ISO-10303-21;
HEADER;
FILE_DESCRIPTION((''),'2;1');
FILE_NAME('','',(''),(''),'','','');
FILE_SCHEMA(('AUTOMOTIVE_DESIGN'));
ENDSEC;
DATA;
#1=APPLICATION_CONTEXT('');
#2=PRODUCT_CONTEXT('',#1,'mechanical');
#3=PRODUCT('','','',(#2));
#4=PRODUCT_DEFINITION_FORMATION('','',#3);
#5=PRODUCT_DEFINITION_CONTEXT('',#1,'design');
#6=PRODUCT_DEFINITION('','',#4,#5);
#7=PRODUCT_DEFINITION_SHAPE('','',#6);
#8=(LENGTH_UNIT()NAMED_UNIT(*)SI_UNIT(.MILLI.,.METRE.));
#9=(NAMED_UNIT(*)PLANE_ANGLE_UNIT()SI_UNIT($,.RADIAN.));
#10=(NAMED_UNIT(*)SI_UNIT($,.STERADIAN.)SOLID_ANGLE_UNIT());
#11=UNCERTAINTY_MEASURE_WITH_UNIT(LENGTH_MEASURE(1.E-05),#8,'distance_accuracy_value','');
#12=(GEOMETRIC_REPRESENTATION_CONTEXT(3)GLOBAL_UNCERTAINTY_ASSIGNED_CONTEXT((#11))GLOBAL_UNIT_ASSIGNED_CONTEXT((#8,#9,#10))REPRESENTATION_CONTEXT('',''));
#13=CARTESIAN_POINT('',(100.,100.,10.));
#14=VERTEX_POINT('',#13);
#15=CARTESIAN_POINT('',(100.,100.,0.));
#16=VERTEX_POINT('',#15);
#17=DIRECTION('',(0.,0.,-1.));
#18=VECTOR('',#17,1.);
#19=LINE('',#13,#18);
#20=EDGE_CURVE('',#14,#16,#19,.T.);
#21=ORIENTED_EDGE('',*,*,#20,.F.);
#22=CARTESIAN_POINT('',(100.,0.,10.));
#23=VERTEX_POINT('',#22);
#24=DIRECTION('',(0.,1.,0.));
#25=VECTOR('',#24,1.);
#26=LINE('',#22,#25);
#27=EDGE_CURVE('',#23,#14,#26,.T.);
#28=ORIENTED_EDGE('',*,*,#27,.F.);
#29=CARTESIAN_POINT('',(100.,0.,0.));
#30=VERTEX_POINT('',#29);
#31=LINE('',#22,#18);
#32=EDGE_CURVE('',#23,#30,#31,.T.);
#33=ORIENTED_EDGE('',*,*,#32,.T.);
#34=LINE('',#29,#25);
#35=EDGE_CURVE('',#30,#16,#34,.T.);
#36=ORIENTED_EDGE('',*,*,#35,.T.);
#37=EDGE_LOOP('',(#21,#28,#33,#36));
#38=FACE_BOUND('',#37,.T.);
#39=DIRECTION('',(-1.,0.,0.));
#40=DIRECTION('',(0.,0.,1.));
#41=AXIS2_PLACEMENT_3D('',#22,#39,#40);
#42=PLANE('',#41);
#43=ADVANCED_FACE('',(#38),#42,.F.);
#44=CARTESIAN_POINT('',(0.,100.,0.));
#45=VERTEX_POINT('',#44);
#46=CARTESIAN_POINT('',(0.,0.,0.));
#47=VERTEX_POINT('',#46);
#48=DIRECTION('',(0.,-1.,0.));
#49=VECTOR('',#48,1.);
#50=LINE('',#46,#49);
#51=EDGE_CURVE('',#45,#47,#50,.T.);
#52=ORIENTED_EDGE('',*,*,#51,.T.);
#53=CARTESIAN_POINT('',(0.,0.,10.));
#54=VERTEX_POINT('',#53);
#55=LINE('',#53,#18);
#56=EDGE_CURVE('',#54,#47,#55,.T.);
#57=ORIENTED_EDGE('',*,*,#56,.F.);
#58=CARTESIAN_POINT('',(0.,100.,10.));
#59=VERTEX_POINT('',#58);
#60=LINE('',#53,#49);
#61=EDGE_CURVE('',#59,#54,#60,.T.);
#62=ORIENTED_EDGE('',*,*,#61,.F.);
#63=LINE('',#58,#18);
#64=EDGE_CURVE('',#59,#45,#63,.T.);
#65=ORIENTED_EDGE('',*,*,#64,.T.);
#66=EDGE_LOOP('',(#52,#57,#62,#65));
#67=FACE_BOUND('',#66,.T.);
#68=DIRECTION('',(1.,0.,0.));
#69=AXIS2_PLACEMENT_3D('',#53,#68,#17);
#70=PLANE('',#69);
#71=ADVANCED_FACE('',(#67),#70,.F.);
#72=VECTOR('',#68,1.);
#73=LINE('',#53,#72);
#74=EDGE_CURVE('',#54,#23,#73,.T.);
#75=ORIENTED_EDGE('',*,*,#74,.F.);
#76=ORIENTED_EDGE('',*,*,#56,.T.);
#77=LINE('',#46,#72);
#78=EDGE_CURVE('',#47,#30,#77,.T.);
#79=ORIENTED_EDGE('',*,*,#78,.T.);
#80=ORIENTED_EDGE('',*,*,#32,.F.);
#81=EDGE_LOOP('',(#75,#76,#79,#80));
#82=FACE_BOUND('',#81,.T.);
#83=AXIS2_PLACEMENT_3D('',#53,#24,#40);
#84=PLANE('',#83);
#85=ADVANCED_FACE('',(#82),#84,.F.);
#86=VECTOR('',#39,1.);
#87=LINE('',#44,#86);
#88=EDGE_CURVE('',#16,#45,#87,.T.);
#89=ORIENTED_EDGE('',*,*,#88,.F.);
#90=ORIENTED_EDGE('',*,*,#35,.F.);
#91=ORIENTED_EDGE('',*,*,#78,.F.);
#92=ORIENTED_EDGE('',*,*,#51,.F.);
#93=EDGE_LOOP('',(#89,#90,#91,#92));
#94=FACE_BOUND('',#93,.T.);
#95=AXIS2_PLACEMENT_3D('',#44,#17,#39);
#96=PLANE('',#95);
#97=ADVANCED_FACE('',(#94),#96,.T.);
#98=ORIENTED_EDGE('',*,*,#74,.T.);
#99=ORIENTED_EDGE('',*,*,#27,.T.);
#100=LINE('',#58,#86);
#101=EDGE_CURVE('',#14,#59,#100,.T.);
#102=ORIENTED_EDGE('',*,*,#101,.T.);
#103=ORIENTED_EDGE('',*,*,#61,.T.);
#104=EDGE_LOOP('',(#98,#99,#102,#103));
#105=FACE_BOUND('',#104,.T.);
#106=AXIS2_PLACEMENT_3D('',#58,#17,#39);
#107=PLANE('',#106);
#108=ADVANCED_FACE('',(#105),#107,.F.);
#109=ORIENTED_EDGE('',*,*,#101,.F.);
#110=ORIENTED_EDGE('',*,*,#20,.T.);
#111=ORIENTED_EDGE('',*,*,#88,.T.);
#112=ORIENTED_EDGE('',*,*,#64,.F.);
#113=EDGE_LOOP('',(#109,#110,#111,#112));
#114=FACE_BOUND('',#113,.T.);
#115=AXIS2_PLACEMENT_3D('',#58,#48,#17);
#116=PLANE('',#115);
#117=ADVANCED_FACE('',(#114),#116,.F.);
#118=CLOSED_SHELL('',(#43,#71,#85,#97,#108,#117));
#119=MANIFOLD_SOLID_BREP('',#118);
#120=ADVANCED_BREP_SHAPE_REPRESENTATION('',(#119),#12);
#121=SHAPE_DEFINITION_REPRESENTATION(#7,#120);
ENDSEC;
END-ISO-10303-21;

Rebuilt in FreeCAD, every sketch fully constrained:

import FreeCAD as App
import Part
import Sketcher
from FreeCAD import Vector
Q = App.Units.Quantity

doc = App.newDocument("Part")
body = doc.addObject("PartDesign::Body", "Body")

# Sketch on XY plane
sketch1 = body.newObject("Sketcher::SketchObject", "Sketch")
sketch1.AttachmentSupport = (doc.getObject("XY_Plane"), [""])
sketch1.MapMode = "FlatFace"
sketch1.addGeometry([
    Part.LineSegment(Vector(0, 100, 0), Vector(0, 0, 0)),
    Part.LineSegment(Vector(0, 0, 0), Vector(100, 0, 0)),
    Part.LineSegment(Vector(100, 0, 0), Vector(100, 100, 0)),
    Part.LineSegment(Vector(100, 100, 0), Vector(0, 100, 0)),
], False)
sketch1.addConstraint([
    Sketcher.Constraint("Coincident", 0, 2, 1, 1),
    Sketcher.Constraint("Coincident", 1, 2, 2, 1),
    Sketcher.Constraint("Coincident", 2, 2, 3, 1),
    Sketcher.Constraint("Coincident", 3, 2, 0, 1),
    Sketcher.Constraint("Vertical", 0),
    Sketcher.Constraint("Horizontal", 1),
    Sketcher.Constraint("Vertical", 2),
    Sketcher.Constraint("Horizontal", 3),
    Sketcher.Constraint("Coincident", 0, 2, -1, 1),
    Sketcher.Constraint("Equal", 3, 0),
    Sketcher.Constraint("DistanceX", 1, 1, 1, 2, Q("100 mm")),
])
pad1 = body.newObject("PartDesign::Pad", "Pad")
pad1.Profile = sketch1
pad1.Length = 10

doc.recompute()
